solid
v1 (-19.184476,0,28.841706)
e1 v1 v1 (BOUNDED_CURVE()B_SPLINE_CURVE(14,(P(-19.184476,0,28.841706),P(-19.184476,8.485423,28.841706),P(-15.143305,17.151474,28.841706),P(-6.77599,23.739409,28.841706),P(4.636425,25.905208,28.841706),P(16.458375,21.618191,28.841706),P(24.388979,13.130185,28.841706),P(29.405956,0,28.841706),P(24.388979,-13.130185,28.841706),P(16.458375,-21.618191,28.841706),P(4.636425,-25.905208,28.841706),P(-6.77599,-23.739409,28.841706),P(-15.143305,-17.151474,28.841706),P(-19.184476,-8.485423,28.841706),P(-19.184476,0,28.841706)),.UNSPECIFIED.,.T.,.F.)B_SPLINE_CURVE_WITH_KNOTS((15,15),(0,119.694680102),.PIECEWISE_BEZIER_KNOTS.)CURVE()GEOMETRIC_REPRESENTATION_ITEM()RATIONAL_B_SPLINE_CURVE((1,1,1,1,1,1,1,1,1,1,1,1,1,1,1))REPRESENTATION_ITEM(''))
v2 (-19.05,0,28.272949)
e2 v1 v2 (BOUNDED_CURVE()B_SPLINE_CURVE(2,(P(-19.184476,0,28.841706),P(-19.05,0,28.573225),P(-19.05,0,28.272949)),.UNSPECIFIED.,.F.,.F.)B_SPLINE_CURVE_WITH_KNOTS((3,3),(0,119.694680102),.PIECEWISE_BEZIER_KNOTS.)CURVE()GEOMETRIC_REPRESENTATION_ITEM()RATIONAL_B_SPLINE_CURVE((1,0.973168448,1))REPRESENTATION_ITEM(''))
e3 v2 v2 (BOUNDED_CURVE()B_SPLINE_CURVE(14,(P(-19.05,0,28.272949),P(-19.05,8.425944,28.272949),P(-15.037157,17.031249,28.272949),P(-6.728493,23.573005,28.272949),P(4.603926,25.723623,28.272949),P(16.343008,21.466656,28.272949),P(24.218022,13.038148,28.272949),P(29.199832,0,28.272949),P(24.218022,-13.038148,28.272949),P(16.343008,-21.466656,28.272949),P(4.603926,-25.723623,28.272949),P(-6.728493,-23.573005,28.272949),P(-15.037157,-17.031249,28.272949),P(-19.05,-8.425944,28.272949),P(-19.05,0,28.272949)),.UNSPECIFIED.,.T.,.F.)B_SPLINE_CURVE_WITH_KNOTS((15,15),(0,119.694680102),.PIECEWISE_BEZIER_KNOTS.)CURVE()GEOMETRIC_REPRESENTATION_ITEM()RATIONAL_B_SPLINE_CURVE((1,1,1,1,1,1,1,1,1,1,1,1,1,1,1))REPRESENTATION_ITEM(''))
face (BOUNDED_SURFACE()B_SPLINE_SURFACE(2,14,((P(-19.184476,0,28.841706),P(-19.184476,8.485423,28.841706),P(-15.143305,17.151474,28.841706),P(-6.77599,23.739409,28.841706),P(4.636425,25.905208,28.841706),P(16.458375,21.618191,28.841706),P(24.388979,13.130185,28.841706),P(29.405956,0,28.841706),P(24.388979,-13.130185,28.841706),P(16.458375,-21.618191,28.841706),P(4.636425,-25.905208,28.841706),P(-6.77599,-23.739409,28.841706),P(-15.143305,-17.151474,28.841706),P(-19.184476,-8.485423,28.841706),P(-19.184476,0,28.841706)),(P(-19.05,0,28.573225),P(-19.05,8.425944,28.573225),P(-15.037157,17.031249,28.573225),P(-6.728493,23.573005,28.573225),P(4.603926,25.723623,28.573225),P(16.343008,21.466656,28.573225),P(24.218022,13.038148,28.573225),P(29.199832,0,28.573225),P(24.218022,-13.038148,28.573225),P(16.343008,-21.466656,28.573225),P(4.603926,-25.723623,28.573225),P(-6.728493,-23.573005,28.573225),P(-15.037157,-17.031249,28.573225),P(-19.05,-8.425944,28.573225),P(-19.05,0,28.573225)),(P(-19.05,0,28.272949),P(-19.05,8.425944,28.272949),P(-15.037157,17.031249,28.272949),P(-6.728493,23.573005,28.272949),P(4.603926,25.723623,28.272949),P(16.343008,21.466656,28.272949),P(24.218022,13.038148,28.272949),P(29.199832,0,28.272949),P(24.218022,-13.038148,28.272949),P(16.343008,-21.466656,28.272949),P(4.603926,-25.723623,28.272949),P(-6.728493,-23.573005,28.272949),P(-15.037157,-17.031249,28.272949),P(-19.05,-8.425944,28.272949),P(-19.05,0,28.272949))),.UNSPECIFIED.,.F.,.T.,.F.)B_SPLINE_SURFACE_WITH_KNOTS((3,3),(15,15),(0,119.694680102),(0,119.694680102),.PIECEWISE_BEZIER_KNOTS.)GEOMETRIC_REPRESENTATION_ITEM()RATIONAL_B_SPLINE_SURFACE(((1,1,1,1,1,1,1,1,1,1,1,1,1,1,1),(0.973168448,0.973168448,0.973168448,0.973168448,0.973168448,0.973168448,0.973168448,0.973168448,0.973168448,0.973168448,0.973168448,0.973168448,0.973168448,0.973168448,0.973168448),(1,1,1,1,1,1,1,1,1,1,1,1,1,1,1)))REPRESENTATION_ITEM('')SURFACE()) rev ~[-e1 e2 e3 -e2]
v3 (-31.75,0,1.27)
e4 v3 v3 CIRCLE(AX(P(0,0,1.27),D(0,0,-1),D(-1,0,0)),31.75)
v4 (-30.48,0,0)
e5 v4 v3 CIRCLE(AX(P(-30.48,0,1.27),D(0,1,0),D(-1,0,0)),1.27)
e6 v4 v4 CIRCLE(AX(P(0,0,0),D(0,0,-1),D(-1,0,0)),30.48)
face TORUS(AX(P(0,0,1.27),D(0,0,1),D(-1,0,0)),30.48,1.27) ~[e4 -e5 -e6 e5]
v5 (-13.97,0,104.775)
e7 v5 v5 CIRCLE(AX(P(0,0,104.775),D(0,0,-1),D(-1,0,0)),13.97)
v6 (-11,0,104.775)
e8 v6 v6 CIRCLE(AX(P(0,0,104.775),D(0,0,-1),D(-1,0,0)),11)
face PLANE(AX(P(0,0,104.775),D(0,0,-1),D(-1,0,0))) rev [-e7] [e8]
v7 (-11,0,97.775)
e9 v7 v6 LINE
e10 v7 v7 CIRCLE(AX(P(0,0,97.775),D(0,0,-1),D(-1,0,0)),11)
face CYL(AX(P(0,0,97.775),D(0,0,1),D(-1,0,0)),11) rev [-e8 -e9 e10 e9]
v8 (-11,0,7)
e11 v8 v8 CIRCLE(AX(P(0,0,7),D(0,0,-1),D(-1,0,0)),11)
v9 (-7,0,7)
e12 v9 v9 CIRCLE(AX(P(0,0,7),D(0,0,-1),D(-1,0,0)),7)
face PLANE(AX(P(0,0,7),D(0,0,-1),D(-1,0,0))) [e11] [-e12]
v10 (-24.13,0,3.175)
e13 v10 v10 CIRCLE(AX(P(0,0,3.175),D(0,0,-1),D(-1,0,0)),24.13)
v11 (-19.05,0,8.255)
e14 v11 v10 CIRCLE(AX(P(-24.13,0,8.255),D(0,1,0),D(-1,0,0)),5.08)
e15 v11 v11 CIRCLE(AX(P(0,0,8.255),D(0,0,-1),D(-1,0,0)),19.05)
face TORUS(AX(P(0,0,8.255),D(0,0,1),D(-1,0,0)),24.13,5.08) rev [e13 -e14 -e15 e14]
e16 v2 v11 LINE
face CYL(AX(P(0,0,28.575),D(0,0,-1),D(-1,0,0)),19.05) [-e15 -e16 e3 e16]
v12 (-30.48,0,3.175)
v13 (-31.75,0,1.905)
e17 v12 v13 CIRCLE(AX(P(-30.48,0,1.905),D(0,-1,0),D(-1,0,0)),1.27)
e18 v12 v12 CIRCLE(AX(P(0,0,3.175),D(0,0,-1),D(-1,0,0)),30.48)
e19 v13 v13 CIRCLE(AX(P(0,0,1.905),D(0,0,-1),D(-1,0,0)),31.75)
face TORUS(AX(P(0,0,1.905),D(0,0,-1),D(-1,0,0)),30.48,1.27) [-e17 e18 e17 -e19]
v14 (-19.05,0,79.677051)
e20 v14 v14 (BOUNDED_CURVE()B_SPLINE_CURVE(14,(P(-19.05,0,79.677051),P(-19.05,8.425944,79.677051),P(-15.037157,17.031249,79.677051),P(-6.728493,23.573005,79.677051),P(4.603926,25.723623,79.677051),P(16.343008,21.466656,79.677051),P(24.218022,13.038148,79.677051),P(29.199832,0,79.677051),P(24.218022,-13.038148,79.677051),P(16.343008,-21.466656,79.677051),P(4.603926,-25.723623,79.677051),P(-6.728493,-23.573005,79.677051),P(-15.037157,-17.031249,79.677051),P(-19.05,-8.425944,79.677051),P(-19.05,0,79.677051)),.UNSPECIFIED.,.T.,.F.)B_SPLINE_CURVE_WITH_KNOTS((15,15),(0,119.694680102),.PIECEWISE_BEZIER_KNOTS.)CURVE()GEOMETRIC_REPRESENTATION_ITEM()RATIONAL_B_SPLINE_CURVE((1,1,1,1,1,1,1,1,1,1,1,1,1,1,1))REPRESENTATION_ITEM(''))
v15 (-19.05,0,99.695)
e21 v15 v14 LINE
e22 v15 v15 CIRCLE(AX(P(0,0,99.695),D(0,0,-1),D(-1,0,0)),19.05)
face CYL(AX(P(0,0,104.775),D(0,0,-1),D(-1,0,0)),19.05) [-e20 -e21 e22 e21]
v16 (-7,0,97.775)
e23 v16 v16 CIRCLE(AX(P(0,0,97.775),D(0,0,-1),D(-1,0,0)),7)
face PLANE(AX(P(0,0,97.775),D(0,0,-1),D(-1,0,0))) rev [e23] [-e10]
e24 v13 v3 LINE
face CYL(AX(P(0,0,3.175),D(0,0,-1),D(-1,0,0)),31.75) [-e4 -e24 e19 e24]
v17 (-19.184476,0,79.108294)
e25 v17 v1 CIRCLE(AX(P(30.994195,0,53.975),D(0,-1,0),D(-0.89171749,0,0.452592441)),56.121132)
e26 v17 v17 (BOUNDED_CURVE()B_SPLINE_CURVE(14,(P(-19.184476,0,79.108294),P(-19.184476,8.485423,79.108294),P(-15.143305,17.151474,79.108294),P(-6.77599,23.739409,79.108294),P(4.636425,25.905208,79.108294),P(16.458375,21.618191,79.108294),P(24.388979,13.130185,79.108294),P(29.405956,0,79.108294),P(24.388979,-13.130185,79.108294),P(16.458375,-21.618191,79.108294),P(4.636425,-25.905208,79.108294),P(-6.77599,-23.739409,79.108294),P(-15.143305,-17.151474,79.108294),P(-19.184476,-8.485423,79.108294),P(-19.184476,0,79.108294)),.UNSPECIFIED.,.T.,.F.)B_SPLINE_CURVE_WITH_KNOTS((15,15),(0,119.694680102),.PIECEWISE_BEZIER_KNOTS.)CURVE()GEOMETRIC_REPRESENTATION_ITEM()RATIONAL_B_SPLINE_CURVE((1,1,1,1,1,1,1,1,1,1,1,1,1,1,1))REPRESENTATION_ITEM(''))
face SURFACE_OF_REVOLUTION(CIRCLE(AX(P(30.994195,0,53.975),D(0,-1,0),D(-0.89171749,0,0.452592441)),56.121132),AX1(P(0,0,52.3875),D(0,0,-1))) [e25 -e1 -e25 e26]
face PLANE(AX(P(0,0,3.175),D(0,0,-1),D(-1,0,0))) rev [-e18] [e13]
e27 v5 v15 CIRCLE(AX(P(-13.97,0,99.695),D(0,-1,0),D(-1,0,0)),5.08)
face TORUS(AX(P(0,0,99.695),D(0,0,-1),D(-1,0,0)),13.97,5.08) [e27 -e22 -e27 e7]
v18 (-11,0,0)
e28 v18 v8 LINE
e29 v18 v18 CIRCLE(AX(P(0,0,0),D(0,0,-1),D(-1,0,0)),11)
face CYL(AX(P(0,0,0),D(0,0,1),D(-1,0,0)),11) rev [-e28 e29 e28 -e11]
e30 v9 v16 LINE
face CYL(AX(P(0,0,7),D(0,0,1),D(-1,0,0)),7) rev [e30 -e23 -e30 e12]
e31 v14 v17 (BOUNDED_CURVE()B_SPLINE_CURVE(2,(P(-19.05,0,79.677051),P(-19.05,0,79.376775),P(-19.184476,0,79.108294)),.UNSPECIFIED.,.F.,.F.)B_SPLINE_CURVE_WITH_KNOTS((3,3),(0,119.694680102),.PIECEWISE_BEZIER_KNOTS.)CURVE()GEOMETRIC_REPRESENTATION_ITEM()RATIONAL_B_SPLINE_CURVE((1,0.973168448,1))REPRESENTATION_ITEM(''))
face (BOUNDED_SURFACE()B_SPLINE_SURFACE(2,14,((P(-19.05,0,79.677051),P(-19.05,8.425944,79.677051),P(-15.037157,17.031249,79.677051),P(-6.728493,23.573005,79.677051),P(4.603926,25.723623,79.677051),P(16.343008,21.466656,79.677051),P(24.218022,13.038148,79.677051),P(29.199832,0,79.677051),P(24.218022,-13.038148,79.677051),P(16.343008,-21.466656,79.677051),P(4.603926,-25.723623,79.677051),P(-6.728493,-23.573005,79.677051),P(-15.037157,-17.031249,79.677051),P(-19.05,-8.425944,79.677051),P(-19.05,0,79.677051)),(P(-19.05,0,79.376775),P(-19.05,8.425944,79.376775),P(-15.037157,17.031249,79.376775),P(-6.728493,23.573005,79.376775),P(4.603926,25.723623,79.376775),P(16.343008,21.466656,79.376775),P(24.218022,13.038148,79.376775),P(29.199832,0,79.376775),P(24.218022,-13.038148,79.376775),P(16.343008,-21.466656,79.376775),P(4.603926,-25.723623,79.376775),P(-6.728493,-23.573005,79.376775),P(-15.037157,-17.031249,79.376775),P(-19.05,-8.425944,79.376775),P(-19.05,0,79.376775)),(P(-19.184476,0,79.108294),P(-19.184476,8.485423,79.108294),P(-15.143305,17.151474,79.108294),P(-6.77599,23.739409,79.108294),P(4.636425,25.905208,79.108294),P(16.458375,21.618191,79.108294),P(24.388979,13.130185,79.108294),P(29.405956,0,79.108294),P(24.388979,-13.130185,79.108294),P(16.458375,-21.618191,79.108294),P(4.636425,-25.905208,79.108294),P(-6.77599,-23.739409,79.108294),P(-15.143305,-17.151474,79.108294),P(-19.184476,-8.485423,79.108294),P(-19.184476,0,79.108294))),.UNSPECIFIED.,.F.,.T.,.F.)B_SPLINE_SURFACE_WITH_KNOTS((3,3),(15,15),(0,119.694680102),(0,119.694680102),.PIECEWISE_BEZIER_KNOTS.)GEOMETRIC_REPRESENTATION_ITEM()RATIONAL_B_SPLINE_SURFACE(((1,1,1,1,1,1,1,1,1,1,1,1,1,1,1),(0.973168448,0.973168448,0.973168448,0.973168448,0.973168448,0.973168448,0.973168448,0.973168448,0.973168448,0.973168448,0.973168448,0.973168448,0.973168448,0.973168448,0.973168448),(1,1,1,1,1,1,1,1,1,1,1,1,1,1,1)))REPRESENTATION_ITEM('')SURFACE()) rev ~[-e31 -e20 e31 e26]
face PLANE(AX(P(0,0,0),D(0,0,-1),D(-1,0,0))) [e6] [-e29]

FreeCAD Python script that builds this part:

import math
import FreeCAD as App
import Part
import Sketcher
from FreeCAD import Vector
Q = App.Units.Quantity


def edges_at(feature, points):
    """Names of the edges that pass closest to the given points."""
    edges = feature.Shape.Edges
    near = lambda p: min(range(len(edges)), key=lambda i: edges[i].distToShape(Part.Vertex(*p))[0])
    return sorted({f"Edge{near(p) + 1}" for p in points})

doc = App.newDocument("Part")
params = doc.addObject("Spreadsheet::Sheet", "Params")
for row, (alias, value) in enumerate([
    ("sketch1_height", "1 in"),
    ("sketch1_width", "0.5 in"),
    ("sketch1_height2", "0.125 in"),
    ("revolution_angle", "360 deg"),
    ("fillet_radius", "0.2 in"),
    ("fillet2_radius", "0.05 in"),
], start=1):
    params.set(f"A{row}", alias)
    params.set(f"B{row}", "=" + value)
    params.setAlias(f"B{row}", alias)

body = doc.addObject("PartDesign::Body", "Body")

# Sketch on XZ plane
sketch1 = body.newObject("Sketcher::SketchObject", "Sketch")
sketch1.AttachmentSupport = (doc.getObject("XZ_Plane"), [""])
sketch1.MapMode = "FlatFace"
sketch1.addGeometry([
    Part.LineSegment(Vector(-11, 7, 0), Vector(-7, 7, 0)),  # 0
    Part.LineSegment(Vector(-7, 7, 0), Vector(-7, 97.8, 0)),  # 1
    Part.LineSegment(Vector(-7, 97.8, 0), Vector(-11, 97.8, 0)),  # 2
    Part.LineSegment(Vector(-11, 97.8, 0), Vector(-11, 104.8, 0)),  # 3
    Part.LineSegment(Vector(-11, 104.8, 0), Vector(-19.1, 104.8, 0)),  # 4
    Part.LineSegment(Vector(-19.1, 104.8, 0), Vector(-19.1, 79.4, 0)),  # 5
    Part.ArcOfCircle(Part.Circle(Vector(31, 54, 0), Vector(0, 0, 1), 56.1), math.radians(153), math.radians(207)),  # 6
    Part.LineSegment(Vector(-19.1, 28.6, 0), Vector(-19.1, 3.2, 0)),  # 7
    Part.LineSegment(Vector(-19.1, 3.2, 0), Vector(-31.8, 3.2, 0)),  # 8
    Part.LineSegment(Vector(-31.8, 3.2, 0), Vector(-31.8, 0, 0)),  # 9
    Part.LineSegment(Vector(-31.8, 0, 0), Vector(-11, 0, 0)),  # 10
    Part.LineSegment(Vector(-11, 0, 0), Vector(-11, 7, 0)),  # 11
], False)
sketch1.addConstraint([
    Sketcher.Constraint("Coincident", 0, 2, 1, 1),
    Sketcher.Constraint("Coincident", 1, 2, 2, 1),
    Sketcher.Constraint("Coincident", 2, 2, 3, 1),
    Sketcher.Constraint("Coincident", 3, 2, 4, 1),
    Sketcher.Constraint("Coincident", 4, 2, 5, 1),
    Sketcher.Constraint("Coincident", 5, 2, 6, 1),
    Sketcher.Constraint("Coincident", 6, 2, 7, 1),
    Sketcher.Constraint("Coincident", 7, 2, 8, 1),
    Sketcher.Constraint("Coincident", 8, 2, 9, 1),
    Sketcher.Constraint("Coincident", 9, 2, 10, 1),
    Sketcher.Constraint("Coincident", 10, 2, 11, 1),
    Sketcher.Constraint("Coincident", 11, 2, 0, 1),
    Sketcher.Constraint("Horizontal", 0),
    Sketcher.Constraint("Vertical", 1),
    Sketcher.Constraint("Horizontal", 2),
    Sketcher.Constraint("Vertical", 3),
    Sketcher.Constraint("Horizontal", 4),
    Sketcher.Constraint("Vertical", 5),
    Sketcher.Constraint("Vertical", 7),
    Sketcher.Constraint("Horizontal", 8),
    Sketcher.Constraint("Vertical", 9),
    Sketcher.Constraint("Horizontal", 10),
    Sketcher.Constraint("Vertical", 11),
    Sketcher.Constraint("PointOnObject", 9, 2, -1),
    Sketcher.Constraint("Vertical", 5, 2, 6, 2),
    Sketcher.Constraint("Vertical", 3, 2, 10, 2),
    Sketcher.Constraint("Equal", 5, 7),
    Sketcher.Constraint("Equal", 3, 11),
    Sketcher.Constraint("DistanceY", 5, 2, 5, 1, Q("1 in")),
    Sketcher.Constraint("DistanceX", 8, 2, 8, 1, Q("0.5 in")),
    Sketcher.Constraint("DistanceY", 6, 3, 3, 2, Q("2 in")),
    Sketcher.Constraint("DistanceY", 9, 2, 9, 1, Q("0.125 in")),
    Sketcher.Constraint("DistanceX", 4, 2, -1, 1, Q("0.75 in")),
    Sketcher.Constraint("Radius", 6, 56.121132),
    Sketcher.Constraint("DistanceX", 0, 1, 0, 2, 4.0),
    Sketcher.Constraint("DistanceX", 4, 2, 4, 1, 8.05),
    Sketcher.Constraint("DistanceY", 1, 1, 1, 2, 90.775),
])
sketch1.setExpression("Constraints[28]", "Params.sketch1_height")
sketch1.setExpression("Constraints[29]", "Params.sketch1_width")
sketch1.setExpression("Constraints[31]", "Params.sketch1_height2")
revolution = body.newObject("PartDesign::Revolution", "Revolution")
revolution.Profile = sketch1
revolution.ReferenceAxis = (sketch1, ["V_Axis"])
revolution.setExpression("Angle", "Params.revolution_angle")
doc.recompute()

fillet = body.newObject("PartDesign::Fillet", "Fillet")
fillet.Base = (revolution, edges_at(revolution, [(19.05, 0, 104.775), (19.05, 0, 3.175)]))
fillet.setExpression("Radius", "Params.fillet_radius")
doc.recompute()

fillet2 = body.newObject("PartDesign::Fillet", "Fillet001")
fillet2.Base = (fillet, edges_at(fillet, [
    (31.75, 0, 3.175),
    (31.75, 0, 0),
    (19.05, 0, 28.575),
    (19.05, 0, 79.375),
]))
fillet2.setExpression("Radius", "Params.fillet2_radius")

doc.recompute()
